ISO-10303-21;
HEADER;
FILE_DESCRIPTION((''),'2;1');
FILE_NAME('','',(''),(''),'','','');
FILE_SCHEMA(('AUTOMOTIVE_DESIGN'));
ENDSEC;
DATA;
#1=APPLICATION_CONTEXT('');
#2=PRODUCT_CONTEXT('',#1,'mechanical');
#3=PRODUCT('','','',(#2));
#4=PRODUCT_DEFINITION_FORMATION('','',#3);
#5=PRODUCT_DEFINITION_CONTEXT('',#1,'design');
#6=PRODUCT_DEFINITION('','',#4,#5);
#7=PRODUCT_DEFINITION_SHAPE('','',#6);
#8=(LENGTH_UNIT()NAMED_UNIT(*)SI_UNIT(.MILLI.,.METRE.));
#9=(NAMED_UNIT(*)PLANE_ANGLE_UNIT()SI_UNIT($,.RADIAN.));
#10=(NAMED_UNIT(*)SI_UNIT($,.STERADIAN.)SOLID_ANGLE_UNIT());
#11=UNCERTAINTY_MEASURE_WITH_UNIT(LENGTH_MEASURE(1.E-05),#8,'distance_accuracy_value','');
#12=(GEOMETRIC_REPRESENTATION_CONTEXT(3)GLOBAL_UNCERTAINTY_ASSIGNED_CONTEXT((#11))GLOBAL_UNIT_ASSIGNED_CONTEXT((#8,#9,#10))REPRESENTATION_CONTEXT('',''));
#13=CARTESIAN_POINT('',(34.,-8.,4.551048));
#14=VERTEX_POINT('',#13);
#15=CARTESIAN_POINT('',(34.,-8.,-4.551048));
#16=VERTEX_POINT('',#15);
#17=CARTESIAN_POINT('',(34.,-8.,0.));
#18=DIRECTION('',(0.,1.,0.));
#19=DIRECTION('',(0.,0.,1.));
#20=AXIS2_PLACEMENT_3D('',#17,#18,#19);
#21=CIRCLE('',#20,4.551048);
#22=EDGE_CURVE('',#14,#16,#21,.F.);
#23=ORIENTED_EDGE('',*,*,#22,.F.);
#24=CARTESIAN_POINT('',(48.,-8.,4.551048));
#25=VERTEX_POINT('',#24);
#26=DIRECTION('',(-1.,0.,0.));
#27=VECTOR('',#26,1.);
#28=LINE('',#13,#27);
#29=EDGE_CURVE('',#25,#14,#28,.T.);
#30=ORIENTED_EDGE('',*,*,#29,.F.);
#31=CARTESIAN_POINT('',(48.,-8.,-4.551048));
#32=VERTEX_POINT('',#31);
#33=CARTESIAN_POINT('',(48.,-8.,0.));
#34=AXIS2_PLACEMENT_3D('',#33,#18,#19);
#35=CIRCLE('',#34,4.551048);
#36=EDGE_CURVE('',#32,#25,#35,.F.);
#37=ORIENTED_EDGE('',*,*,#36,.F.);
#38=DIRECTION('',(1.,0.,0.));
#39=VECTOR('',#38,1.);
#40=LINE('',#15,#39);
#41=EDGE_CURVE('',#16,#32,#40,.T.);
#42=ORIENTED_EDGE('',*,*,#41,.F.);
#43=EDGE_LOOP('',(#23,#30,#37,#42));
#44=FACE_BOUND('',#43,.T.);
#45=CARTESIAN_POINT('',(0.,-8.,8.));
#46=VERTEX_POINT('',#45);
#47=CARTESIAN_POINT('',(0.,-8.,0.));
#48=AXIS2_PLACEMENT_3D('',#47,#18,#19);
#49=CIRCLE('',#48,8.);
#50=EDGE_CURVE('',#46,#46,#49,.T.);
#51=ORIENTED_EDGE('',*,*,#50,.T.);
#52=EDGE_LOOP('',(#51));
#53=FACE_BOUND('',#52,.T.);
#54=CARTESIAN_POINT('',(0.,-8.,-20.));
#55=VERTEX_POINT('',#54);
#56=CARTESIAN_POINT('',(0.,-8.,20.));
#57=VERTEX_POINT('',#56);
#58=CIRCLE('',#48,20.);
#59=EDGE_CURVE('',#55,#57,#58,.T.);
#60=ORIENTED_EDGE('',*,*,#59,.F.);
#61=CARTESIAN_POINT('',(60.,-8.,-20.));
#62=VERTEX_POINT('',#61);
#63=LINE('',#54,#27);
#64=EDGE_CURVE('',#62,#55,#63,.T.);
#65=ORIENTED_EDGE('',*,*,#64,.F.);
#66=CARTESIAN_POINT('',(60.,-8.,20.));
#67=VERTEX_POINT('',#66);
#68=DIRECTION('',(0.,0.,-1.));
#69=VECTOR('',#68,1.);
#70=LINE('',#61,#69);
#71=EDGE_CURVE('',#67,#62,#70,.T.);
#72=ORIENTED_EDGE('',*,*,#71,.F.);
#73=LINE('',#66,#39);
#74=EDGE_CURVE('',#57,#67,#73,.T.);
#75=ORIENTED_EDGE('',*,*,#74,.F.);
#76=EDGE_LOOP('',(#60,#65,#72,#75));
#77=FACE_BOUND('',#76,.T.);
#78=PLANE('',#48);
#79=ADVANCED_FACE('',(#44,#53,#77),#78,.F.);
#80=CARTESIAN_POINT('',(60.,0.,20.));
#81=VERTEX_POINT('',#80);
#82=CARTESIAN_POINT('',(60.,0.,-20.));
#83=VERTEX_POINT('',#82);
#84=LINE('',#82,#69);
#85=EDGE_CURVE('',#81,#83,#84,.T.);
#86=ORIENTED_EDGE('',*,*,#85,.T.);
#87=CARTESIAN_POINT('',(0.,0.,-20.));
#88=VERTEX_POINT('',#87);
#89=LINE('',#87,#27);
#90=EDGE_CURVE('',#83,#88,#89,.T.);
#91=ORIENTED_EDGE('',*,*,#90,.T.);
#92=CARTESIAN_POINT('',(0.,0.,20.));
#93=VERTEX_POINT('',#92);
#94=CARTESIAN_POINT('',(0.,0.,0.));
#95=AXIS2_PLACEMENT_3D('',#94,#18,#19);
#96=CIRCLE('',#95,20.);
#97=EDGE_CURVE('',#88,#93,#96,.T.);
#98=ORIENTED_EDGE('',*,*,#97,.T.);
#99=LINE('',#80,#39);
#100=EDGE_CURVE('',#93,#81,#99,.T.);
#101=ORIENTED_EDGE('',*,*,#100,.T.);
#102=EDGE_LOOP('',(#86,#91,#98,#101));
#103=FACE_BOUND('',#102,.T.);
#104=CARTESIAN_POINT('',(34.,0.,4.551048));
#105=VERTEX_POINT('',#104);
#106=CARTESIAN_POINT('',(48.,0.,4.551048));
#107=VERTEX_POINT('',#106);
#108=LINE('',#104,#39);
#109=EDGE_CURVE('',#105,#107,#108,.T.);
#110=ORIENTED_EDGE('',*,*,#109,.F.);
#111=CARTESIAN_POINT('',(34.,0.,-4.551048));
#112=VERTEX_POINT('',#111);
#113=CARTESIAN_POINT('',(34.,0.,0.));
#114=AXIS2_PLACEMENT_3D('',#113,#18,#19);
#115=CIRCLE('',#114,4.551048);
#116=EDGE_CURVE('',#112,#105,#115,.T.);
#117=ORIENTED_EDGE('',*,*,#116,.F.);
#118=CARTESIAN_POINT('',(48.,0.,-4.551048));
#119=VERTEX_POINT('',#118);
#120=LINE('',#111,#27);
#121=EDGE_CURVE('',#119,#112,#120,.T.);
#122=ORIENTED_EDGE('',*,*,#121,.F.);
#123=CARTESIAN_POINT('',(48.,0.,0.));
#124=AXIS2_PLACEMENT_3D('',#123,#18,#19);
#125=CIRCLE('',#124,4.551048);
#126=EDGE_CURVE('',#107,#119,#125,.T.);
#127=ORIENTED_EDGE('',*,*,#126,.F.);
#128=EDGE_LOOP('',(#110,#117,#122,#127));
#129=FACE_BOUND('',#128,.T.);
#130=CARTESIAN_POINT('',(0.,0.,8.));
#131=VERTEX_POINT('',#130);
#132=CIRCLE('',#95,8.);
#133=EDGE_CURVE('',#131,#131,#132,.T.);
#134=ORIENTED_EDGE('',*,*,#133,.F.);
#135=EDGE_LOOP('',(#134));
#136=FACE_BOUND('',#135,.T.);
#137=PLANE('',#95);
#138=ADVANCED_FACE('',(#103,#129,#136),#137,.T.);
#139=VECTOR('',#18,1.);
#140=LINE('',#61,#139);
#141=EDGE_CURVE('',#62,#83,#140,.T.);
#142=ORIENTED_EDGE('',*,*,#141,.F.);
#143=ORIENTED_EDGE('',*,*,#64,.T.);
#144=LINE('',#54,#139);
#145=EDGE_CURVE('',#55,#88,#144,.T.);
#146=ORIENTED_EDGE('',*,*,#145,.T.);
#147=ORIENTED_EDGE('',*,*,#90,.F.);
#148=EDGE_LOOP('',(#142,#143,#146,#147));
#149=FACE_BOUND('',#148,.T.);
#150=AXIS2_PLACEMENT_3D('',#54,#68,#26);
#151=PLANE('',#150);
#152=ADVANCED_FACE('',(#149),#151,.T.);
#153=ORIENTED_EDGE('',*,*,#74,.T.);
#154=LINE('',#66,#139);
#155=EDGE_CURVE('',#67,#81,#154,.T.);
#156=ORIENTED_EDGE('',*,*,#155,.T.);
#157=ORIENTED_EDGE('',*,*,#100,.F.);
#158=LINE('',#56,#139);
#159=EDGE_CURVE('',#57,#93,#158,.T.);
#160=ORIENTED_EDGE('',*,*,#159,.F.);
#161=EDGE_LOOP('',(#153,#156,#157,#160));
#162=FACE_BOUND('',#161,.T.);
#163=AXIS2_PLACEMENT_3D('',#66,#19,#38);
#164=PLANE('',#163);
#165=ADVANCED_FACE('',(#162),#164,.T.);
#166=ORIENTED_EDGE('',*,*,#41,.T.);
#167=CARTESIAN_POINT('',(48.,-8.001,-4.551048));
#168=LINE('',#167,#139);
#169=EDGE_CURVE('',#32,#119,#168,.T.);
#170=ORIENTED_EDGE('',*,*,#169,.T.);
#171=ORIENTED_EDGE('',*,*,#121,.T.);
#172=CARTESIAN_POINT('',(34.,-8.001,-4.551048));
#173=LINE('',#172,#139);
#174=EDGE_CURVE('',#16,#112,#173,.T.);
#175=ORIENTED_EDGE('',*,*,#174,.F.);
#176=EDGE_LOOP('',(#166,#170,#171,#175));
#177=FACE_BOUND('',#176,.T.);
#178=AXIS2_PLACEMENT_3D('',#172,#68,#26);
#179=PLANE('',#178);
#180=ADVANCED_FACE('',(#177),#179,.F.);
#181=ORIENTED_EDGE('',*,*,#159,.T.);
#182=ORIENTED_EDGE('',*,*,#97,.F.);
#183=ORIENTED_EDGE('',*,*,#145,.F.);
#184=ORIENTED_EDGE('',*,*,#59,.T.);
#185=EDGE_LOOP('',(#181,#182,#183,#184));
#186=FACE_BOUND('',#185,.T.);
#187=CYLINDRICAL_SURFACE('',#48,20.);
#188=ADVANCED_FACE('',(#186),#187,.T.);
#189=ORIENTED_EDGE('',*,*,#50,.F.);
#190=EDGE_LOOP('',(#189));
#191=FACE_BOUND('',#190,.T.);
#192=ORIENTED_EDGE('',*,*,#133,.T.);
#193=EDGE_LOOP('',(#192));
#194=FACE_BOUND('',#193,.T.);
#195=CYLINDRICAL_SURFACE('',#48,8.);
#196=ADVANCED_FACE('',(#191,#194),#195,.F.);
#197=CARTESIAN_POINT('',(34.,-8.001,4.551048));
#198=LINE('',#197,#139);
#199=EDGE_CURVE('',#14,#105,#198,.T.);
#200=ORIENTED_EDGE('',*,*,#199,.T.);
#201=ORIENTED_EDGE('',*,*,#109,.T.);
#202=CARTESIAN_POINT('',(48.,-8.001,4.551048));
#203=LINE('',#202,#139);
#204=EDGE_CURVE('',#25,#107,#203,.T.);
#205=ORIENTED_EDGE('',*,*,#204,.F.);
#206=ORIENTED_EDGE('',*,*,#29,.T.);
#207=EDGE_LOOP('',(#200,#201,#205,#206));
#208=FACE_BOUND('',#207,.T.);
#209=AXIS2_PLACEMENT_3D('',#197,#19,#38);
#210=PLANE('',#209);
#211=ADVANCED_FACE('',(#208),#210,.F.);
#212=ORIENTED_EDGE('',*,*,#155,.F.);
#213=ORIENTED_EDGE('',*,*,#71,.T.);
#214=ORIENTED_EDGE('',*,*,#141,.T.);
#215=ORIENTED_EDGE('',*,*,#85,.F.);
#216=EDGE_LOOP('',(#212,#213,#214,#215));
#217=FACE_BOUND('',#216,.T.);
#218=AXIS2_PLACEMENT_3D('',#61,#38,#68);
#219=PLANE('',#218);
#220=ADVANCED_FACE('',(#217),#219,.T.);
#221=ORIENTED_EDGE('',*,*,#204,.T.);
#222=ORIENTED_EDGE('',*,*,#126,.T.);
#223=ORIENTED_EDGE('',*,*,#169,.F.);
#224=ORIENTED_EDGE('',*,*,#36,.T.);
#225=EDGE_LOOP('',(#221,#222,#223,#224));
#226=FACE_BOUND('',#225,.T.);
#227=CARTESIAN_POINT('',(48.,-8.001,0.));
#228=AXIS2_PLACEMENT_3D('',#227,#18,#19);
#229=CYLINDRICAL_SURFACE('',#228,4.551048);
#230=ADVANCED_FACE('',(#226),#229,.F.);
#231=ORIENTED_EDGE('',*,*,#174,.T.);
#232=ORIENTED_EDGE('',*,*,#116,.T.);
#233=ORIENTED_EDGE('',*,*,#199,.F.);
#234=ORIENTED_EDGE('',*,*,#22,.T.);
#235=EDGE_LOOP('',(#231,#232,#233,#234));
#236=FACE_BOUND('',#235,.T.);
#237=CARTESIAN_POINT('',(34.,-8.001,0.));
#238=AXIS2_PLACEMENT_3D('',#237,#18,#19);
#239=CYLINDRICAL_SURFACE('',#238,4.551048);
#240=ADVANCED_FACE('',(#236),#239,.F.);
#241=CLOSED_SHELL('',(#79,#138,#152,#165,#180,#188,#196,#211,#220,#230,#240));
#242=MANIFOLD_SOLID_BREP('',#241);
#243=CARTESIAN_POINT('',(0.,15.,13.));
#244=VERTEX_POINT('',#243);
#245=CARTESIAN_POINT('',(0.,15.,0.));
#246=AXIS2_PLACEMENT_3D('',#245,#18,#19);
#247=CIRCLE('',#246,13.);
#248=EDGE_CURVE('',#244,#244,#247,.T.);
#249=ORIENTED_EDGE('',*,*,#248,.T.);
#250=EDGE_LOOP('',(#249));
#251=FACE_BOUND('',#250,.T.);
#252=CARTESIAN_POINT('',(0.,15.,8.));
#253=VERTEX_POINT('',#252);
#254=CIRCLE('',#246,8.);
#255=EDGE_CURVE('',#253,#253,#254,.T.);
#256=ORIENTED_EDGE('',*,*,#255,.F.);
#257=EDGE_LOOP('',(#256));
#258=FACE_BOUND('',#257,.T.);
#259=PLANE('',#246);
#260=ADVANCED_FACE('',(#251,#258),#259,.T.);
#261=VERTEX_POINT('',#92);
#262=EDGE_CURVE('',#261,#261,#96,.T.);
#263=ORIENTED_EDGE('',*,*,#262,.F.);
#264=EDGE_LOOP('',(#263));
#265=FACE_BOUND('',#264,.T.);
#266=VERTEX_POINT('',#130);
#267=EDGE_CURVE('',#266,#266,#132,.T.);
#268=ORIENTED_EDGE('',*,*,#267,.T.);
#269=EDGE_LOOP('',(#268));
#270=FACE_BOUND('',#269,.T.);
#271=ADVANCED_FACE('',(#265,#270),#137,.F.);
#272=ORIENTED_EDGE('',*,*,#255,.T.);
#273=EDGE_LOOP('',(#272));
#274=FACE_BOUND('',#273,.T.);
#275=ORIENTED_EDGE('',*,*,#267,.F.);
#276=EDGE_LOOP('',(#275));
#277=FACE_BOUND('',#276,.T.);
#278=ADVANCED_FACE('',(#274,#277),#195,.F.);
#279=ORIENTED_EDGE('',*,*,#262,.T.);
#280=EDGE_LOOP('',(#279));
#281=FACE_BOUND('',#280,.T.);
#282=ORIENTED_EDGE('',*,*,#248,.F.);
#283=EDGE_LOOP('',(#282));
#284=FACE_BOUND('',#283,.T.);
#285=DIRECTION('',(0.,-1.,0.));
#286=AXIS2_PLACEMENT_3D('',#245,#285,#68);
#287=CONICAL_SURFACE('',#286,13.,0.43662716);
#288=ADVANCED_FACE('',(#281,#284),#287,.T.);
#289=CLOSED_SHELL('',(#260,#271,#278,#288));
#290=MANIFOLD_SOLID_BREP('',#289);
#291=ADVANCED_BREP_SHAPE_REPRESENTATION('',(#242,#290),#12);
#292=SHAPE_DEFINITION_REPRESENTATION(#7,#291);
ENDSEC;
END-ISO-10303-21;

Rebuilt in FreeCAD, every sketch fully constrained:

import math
import FreeCAD as App
import Part
import Sketcher
from FreeCAD import Vector
Q = App.Units.Quantity

doc = App.newDocument("Part")
body = doc.addObject("PartDesign::Body", "Body")

sketch1 = doc.addObject("Sketcher::SketchObject", "Sketch")
body.addObject(sketch1)
sketch1.AttachmentSupport = (doc.XZ_Plane, [""])
sketch1.MapMode = "FlatFace"
sketch1.AttachmentOffset = App.Placement(Vector(0, 0, -15), App.Rotation())
sketch1.addGeometry(Part.Circle(Vector(0, 0, 0), Vector(0, 0, 1), 13), False)
sketch1.addConstraint(Sketcher.Constraint("Coincident", 0, 3, -1, 1))
sketch1.addConstraint(Sketcher.Constraint("Diameter", 0, Q("26 mm")))

sketch2 = doc.addObject("Sketcher::SketchObject", "Sketch001")
body.addObject(sketch2)
sketch2.AttachmentSupport = (doc.XZ_Plane, [""])
sketch2.MapMode = "FlatFace"
sketch2.addGeometry(Part.Circle(Vector(0, 0, 0), Vector(0, 0, 1), 20), False)
sketch2.addConstraint(Sketcher.Constraint("Coincident", 0, 3, -1, 1))
sketch2.addConstraint(Sketcher.Constraint("Diameter", 0, Q("40 mm")))

additiveloft = doc.addObject("PartDesign::AdditiveLoft", "AdditiveLoft")
body.addObject(additiveloft)
additiveloft.Profile = sketch1
additiveloft.Sections = [sketch2]
body2 = doc.addObject("PartDesign::Body", "Body001")

sketch3 = doc.addObject("Sketcher::SketchObject", "Sketch002")
body2.addObject(sketch3)
sketch3.AttachmentSupport = (doc.getObject("XZ_Plane001"), [""])
sketch3.MapMode = "FlatFace"
sketch3.addGeometry(Part.LineSegment(Vector(60, -20, 0), Vector(0, -20, 0)), False)
sketch3.addGeometry(Part.ArcOfCircle(Part.Circle(Vector(0, 0, 0), Vector(0, 0, 1), 20), math.radians(90), math.radians(270)), False)
sketch3.addGeometry(Part.LineSegment(Vector(0, 20, 0), Vector(60, 20, 0)), False)
sketch3.addGeometry(Part.LineSegment(Vector(60, 20, 0), Vector(60, -20, 0)), False)
sketch3.addConstraint(Sketcher.Constraint("Tangent", 0, 2, 1, 2))
sketch3.addConstraint(Sketcher.Constraint("Tangent", 1, 1, 2, 1))
sketch3.addConstraint(Sketcher.Constraint("Coincident", 2, 2, 3, 1))
sketch3.addConstraint(Sketcher.Constraint("Coincident", 3, 2, 0, 1))
sketch3.addConstraint(Sketcher.Constraint("Horizontal", 0))
sketch3.addConstraint(Sketcher.Constraint("Horizontal", 2))
sketch3.addConstraint(Sketcher.Constraint("Vertical", 3))
sketch3.addConstraint(Sketcher.Constraint("Coincident", 1, 3, -1, 1))
sketch3.addConstraint(Sketcher.Constraint("Radius", 1, Q("20 mm")))
sketch3.addConstraint(Sketcher.Constraint("DistanceX", 0, 2, 0, 1, Q("60 mm")))
pad1 = doc.addObject("PartDesign::Pad", "Pad")
body2.addObject(pad1)
pad1.Profile = sketch3
pad1.Length = 8

sketch4 = doc.addObject("Sketcher::SketchObject", "Sketch003")
body2.addObject(sketch4)
sketch4.AttachmentSupport = (doc.getObject("XZ_Plane001"), [""])
sketch4.MapMode = "FlatFace"
sketch4.addGeometry(Part.LineSegment(Vector(48, -4.551048, 0), Vector(34, -4.551048, 0)), False)
sketch4.addGeometry(Part.ArcOfCircle(Part.Circle(Vector(34, 0, 0), Vector(0, 0, 1), 4.551048), math.radians(90), math.radians(270)), False)
sketch4.addGeometry(Part.LineSegment(Vector(34, 4.551048, 0), Vector(48, 4.551048, 0)), False)
sketch4.addGeometry(Part.ArcOfCircle(Part.Circle(Vector(48, 0, 0), Vector(0, 0, 1), 4.551048), math.radians(-90), math.radians(90)), False)
sketch4.addConstraint(Sketcher.Constraint("Tangent", 0, 2, 1, 2))
sketch4.addConstraint(Sketcher.Constraint("Tangent", 1, 1, 2, 1))
sketch4.addConstraint(Sketcher.Constraint("Tangent", 2, 2, 3, 2))
sketch4.addConstraint(Sketcher.Constraint("Tangent", 3, 1, 0, 1))
sketch4.addConstraint(Sketcher.Constraint("Horizontal", 0))
sketch4.addConstraint(Sketcher.Constraint("Horizontal", 2))
sketch4.addConstraint(Sketcher.Constraint("PointOnObject", 1, 3, -1))
sketch4.addConstraint(Sketcher.Constraint("DistanceX", 0, 2, 0, 1, Q("14 mm")))
sketch4.addConstraint(Sketcher.Constraint("DistanceX", -1, 1, 1, 3, Q("34 mm")))
sketch4.addConstraint(Sketcher.Constraint("Radius", 1, Q("4.551048 mm")))
pocket1 = doc.addObject("PartDesign::Pocket", "Pocket")
body2.addObject(pocket1)
pocket1.Profile = sketch4
pocket1.Length = 8
pocket1.Reversed = True
body3 = doc.addObject("PartDesign::Body", "Body002")

sketch5 = doc.addObject("Sketcher::SketchObject", "Sketch004")
body3.addObject(sketch5)
sketch5.AttachmentSupport = (doc.getObject("XZ_Plane002"), [""])
sketch5.MapMode = "FlatFace"
sketch5.AttachmentOffset = App.Placement(Vector(0, 0, -15), App.Rotation())
sketch5.addGeometry(Part.Circle(Vector(0, 0, 0), Vector(0, 0, 1), 8), False)
sketch5.addConstraint(Sketcher.Constraint("Coincident", 0, 3, -1, 1))
sketch5.addConstraint(Sketcher.Constraint("Diameter", 0, Q("16 mm")))
pad2 = doc.addObject("PartDesign::Pad", "Pad001")
body3.addObject(pad2)
pad2.Profile = sketch5
pad2.Length = 24
doc.recompute()

body4 = doc.addObject("PartDesign::Body", "Body003")
body4.BaseFeature = body3
boolean = doc.addObject("PartDesign::Boolean", "Boolean")
body.addObject(boolean)
boolean.Type = "Cut"
boolean.addObjects([body4])
doc.recompute()

boolean2 = doc.addObject("PartDesign::Boolean", "Boolean001")
body2.addObject(boolean2)
boolean2.Type = "Cut"
boolean2.addObjects([body3])

doc.recompute()
